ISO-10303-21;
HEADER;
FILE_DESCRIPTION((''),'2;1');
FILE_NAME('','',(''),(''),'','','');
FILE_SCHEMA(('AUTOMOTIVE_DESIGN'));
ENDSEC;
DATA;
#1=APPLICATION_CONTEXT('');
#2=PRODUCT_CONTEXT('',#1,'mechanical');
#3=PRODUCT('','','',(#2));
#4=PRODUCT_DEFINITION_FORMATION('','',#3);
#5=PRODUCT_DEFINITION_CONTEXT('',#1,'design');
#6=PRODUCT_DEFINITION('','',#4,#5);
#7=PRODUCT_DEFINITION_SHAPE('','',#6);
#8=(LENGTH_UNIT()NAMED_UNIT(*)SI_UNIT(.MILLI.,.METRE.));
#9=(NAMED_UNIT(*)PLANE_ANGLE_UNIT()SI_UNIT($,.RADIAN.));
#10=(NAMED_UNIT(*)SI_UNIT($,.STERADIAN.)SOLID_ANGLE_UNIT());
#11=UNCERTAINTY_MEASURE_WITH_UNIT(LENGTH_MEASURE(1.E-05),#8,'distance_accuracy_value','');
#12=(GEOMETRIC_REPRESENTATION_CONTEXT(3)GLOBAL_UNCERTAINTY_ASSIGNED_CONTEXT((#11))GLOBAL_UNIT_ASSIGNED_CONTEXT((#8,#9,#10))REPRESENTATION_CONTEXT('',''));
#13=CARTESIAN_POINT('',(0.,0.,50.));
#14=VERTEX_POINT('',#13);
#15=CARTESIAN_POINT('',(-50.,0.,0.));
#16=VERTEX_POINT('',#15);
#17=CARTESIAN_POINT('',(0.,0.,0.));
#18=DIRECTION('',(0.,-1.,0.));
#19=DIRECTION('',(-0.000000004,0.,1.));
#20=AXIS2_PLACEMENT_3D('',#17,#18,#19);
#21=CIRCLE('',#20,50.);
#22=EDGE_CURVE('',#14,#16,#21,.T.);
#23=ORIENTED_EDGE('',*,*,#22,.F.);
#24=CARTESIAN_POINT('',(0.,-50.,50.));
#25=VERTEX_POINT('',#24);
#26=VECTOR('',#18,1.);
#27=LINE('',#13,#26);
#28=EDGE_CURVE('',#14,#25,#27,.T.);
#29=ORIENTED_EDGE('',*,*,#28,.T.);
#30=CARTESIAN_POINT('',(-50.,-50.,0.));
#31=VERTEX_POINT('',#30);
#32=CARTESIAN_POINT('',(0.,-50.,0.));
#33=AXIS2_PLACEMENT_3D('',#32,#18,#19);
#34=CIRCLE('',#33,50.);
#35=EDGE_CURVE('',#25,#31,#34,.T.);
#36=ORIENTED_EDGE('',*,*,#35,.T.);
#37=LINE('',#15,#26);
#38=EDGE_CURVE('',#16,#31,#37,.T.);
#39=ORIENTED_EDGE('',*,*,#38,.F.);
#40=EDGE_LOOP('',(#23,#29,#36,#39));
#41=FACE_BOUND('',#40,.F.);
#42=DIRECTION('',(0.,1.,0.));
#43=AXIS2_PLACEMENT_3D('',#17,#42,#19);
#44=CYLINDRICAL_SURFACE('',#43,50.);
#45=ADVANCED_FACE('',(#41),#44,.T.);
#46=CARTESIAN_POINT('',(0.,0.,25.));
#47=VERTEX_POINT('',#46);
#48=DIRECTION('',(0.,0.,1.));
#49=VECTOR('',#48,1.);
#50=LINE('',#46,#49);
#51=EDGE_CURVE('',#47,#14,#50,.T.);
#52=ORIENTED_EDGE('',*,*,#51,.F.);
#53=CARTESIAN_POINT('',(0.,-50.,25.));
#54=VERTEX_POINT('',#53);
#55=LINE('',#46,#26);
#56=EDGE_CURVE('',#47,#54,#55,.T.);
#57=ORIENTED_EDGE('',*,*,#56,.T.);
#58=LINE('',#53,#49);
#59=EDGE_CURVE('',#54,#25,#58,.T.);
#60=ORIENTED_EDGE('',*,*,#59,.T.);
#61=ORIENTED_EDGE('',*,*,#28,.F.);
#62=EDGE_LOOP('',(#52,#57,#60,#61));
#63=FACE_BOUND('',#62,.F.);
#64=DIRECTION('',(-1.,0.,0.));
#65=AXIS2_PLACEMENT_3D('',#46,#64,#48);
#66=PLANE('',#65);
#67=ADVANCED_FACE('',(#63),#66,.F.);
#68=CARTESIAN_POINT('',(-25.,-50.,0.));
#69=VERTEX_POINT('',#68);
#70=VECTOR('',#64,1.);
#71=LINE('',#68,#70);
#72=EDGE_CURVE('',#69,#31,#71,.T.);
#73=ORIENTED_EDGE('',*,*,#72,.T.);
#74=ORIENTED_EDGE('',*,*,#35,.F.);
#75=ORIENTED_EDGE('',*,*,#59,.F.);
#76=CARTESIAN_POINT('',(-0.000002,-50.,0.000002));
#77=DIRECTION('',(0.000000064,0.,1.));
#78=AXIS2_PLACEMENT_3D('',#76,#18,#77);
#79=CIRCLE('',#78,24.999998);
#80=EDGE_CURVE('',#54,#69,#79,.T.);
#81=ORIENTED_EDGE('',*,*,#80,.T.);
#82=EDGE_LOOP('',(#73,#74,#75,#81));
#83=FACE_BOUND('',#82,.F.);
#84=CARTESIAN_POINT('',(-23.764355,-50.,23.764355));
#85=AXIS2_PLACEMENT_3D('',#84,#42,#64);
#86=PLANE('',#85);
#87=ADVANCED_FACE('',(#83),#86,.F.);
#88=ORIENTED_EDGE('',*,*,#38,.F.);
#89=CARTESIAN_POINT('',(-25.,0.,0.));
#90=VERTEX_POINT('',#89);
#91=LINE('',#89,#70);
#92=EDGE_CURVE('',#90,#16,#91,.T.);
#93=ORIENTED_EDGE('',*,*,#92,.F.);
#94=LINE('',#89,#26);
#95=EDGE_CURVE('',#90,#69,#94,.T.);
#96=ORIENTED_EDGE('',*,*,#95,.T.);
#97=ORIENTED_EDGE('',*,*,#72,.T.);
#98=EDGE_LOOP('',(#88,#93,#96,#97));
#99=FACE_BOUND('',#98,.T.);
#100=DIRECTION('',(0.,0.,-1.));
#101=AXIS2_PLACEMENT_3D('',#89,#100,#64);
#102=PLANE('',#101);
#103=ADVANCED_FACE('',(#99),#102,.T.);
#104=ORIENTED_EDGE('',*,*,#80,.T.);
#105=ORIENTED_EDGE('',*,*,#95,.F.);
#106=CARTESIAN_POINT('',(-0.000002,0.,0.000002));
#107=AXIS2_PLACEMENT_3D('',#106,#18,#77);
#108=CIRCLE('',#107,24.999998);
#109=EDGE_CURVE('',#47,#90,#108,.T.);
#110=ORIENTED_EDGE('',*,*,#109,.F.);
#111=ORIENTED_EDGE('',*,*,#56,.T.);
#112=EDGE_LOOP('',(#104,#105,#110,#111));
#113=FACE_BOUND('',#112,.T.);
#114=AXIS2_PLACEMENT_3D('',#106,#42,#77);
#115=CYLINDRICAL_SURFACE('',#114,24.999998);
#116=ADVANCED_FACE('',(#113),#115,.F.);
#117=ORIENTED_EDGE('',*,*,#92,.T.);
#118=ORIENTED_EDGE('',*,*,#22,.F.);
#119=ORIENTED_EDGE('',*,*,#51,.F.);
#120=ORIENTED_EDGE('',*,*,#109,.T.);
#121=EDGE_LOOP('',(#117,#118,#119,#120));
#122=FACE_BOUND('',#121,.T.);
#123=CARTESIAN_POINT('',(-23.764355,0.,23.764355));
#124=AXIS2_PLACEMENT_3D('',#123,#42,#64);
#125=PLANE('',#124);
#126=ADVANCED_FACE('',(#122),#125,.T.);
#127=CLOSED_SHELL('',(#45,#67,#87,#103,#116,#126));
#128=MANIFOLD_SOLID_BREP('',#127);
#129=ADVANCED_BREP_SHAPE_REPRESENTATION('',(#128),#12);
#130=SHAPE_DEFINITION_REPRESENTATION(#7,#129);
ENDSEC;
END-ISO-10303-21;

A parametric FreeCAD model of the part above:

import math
import FreeCAD as App
import Part
import Sketcher

V = App.Vector

doc = App.newDocument("Part")
body = doc.addObject("PartDesign::Body", "Body")

sketch1 = body.newObject("Sketcher::SketchObject", "Sketch")
sketch1.AttachmentSupport = (doc.getObject("XZ_Plane"), [""])
sketch1.MapMode = "FlatFace"
sketch1.addGeometry(Part.ArcOfCircle(Part.Circle(V(0, 0, 0), V(0, 0, 1), 25), math.radians(90), math.radians(180)), False)
sketch1.addGeometry(Part.LineSegment(V(0, 25, 0), V(0, 50, 0)), False)
sketch1.addGeometry(Part.ArcOfCircle(Part.Circle(V(0, 0, 0), V(0, 0, 1), 50), math.radians(90), math.radians(180)), False)
sketch1.addGeometry(Part.LineSegment(V(-50, 0, 0), V(-25, 0, 0)), False)
sketch1.addConstraint(Sketcher.Constraint("Coincident", 0, 1, 1, 1))
sketch1.addConstraint(Sketcher.Constraint("Coincident", 1, 2, 2, 1))
sketch1.addConstraint(Sketcher.Constraint("Coincident", 2, 2, 3, 1))
sketch1.addConstraint(Sketcher.Constraint("Coincident", 3, 2, 0, 2))
sketch1.addConstraint(Sketcher.Constraint("Vertical", 1))
sketch1.addConstraint(Sketcher.Constraint("Horizontal", 3))
sketch1.addConstraint(Sketcher.Constraint("Coincident", 0, 3, -1, 1))
sketch1.addConstraint(Sketcher.Constraint("Coincident", 2, 3, -1, 1))
sketch1.addConstraint(Sketcher.Constraint("PointOnObject", 0, 1, -2))
sketch1.addConstraint(Sketcher.Constraint("PointOnObject", 2, 2, -1))
sketch1.addConstraint(Sketcher.Constraint("Radius", 0, 24.999998))
sketch1.addConstraint(Sketcher.Constraint("Radius", 2, 50.0))
pad1 = body.newObject("PartDesign::Pad", "Pad")
pad1.Profile = sketch1
pad1.Length = 50

doc.recompute()
